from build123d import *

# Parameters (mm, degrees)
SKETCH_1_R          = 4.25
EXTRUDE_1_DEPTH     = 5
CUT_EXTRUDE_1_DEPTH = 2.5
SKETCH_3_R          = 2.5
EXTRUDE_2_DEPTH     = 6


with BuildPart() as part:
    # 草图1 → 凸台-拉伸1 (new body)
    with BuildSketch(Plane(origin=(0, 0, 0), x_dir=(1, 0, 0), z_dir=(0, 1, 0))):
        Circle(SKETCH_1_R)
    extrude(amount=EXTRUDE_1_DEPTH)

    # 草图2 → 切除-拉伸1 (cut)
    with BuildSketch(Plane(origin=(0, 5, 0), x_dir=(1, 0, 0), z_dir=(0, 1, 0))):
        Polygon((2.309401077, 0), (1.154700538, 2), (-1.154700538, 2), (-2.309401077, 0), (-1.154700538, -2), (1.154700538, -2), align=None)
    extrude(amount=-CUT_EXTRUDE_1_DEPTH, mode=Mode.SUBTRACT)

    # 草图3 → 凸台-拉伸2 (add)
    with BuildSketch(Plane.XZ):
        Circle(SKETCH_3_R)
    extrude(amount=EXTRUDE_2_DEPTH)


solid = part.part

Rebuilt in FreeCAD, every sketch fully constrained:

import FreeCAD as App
import Part
import Sketcher
from FreeCAD import Vector
Q = App.Units.Quantity


def add_polygon(sketch, points):
    """Adds a closed chain of lines whose ends are joined by coincident constraints."""
    first, n = sketch.GeometryCount, len(points)
    for a, b in zip(points, points[1:] + points[:1]):
        sketch.addGeometry(Part.LineSegment(App.Vector(*a, 0), App.Vector(*b, 0)), False)
    for i in range(n):
        sketch.addConstraint(Sketcher.Constraint("Coincident", first + i, 2, first + (i + 1) % n, 1))

doc = App.newDocument("Part")
body = doc.addObject("PartDesign::Body", "Body")

sketch1 = body.newObject("Sketcher::SketchObject", "Sketch")
sketch1.AttachmentSupport = (doc.getObject("XZ_Plane"), [""])
sketch1.MapMode = "FlatFace"
sketch1.addGeometry(Part.Circle(Vector(0, 0, 0), Vector(0, 0, 1), 4.25), False)
sketch1.addConstraint(Sketcher.Constraint("Coincident", 0, 3, -1, 1))
sketch1.addConstraint(Sketcher.Constraint("Diameter", 0, Q("8.5 mm")))
pad1 = body.newObject("PartDesign::Pad", "Pad")
pad1.Profile = sketch1
pad1.Length = 5
pad1.Reversed = True

sketch2 = body.newObject("Sketcher::SketchObject", "Sketch001")
sketch2.AttachmentSupport = (doc.getObject("XZ_Plane"), [""])
sketch2.MapMode = "FlatFace"
sketch2.AttachmentOffset = App.Placement(Vector(0, 0, -5), App.Rotation())
add_polygon(sketch2, [(2.309401, 0), (1.154701, -2), (-1.154701, -2), (-2.309401, 0), (-1.154701, 2), (1.154701, 2)])
sketch2.addConstraint(Sketcher.Constraint("Horizontal", 1))
sketch2.addConstraint(Sketcher.Constraint("Horizontal", 4))
sketch2.addConstraint(Sketcher.Constraint("Symmetric", 0, 2, 3, 2, -1, 1))
sketch2.addConstraint(Sketcher.Constraint("Symmetric", 2, 2, 5, 2, -1, 1))
sketch2.addConstraint(Sketcher.Constraint("PointOnObject", 2, 2, -1))
sketch2.addConstraint(Sketcher.Constraint("Parallel", 2, 5))
sketch2.addConstraint(Sketcher.Constraint("Vertical", 1, 2, 3, 2))
sketch2.addConstraint(Sketcher.Constraint("Angle", 0, Q("-120 deg")))
sketch2.addConstraint(Sketcher.Constraint("DistanceY", 0, 2, -1, 1, Q("2 mm")))
sketch2.addConstraint(Sketcher.Constraint("DistanceX", 1, 2, 1, 1, Q("2.309401 mm")))
pocket1 = body.newObject("PartDesign::Pocket", "Pocket")
pocket1.Profile = sketch2
pocket1.Length = 2.5
pocket1.Reversed = True

sketch3 = body.newObject("Sketcher::SketchObject", "Sketch002")
sketch3.AttachmentSupport = (doc.getObject("XZ_Plane"), [""])
sketch3.MapMode = "FlatFace"
sketch3.addGeometry(Part.Circle(Vector(0, 0, 0), Vector(0, 0, 1), 2.5), False)
sketch3.addConstraint(Sketcher.Constraint("Coincident", 0, 3, -1, 1))
sketch3.addConstraint(Sketcher.Constraint("Diameter", 0, Q("5 mm")))
pad2 = body.newObject("PartDesign::Pad", "Pad001")
pad2.Profile = sketch3
pad2.Length = 6

doc.recompute()
